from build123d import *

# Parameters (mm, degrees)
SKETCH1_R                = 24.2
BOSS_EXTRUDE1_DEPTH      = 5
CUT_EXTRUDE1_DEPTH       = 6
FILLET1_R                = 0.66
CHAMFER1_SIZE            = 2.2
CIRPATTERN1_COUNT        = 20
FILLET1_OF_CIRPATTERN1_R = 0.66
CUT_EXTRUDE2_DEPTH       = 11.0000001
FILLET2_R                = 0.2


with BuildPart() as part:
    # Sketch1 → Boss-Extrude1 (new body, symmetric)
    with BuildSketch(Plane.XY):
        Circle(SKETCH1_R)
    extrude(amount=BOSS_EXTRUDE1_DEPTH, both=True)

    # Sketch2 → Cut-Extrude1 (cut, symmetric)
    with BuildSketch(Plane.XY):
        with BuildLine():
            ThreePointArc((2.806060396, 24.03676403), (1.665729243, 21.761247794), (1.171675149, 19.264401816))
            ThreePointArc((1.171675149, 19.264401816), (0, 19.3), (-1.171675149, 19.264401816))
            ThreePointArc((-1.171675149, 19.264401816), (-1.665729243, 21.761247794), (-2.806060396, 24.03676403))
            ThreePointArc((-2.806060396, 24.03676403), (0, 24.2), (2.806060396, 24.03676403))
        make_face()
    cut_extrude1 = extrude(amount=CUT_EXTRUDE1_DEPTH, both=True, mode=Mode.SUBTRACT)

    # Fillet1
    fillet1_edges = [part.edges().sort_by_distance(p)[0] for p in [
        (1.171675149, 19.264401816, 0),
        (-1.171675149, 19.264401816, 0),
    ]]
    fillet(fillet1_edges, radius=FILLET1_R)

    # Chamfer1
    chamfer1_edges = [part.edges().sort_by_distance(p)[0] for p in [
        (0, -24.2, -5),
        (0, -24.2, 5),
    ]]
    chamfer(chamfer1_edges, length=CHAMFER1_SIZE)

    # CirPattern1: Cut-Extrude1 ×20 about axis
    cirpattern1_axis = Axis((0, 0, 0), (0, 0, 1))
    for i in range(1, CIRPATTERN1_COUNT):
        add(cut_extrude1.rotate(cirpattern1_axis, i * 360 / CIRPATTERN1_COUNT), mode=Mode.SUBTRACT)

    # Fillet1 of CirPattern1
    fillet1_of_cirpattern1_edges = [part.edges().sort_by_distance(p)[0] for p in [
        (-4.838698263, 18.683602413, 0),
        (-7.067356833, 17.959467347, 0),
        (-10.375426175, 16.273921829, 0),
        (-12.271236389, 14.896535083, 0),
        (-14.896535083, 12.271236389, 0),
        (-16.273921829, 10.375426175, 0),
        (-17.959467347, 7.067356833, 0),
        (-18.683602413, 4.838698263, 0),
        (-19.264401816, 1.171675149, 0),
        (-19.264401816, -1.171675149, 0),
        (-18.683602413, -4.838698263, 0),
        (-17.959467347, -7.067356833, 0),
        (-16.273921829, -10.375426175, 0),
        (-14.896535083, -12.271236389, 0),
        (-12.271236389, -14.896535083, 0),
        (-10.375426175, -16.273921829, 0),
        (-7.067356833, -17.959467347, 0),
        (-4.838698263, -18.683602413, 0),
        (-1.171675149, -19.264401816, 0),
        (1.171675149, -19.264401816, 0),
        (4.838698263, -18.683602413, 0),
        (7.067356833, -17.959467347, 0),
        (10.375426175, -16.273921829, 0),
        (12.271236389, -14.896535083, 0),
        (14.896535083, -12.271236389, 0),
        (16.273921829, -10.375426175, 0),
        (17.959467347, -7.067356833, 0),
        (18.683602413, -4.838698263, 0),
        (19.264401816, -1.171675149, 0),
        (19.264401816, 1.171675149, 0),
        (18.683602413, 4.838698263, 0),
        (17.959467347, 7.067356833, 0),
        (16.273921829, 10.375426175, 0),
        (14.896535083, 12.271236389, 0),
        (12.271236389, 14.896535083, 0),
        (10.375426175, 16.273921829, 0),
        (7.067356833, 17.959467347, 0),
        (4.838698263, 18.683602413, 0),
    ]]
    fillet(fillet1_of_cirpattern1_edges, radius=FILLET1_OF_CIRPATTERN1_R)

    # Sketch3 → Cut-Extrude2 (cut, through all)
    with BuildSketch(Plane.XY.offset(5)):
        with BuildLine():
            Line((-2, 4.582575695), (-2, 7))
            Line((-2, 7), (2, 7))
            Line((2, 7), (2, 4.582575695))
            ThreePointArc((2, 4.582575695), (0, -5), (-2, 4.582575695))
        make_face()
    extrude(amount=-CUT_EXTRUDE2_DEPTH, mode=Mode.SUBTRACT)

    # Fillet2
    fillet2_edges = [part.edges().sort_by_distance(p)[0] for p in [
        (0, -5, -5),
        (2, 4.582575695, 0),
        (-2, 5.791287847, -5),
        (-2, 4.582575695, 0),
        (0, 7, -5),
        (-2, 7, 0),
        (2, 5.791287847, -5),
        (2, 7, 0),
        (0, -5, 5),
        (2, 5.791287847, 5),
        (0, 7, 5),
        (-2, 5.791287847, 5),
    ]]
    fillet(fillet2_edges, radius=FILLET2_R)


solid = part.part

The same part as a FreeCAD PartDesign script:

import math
import FreeCAD as App
import Part
import Sketcher

V = App.Vector
Q = App.Units.Quantity


def edges_at(feature, points):
    """Names of the edges that pass closest to the given points."""
    edges = feature.Shape.Edges
    near = lambda p: min(range(len(edges)), key=lambda i: edges[i].distToShape(Part.Vertex(*p))[0])
    return sorted({f"Edge{near(p) + 1}" for p in points})

doc = App.newDocument("Part")
body = doc.addObject("PartDesign::Body", "Body")

sketch1 = doc.addObject("Sketcher::SketchObject", "Sketch")
body.addObject(sketch1)
sketch1.AttachmentSupport = (doc.XY_Plane, [""])
sketch1.MapMode = "FlatFace"
sketch1.addGeometry(Part.Circle(V(0, 0, 0), V(0, 0, 1), 24), False)
sketch1.addConstraint([
    Sketcher.Constraint("Coincident", 0, 3, -1, 1),
    Sketcher.Constraint("Diameter", 0, Q("48.4 mm")),
])
pad1 = doc.addObject("PartDesign::Pad", "Pad")
body.addObject(pad1)
pad1.Profile = sketch1
pad1.Length = 10
pad1.Midplane = True

sketch2 = doc.addObject("Sketcher::SketchObject", "Sketch001")
body.addObject(sketch2)
sketch2.AttachmentSupport = (doc.XY_Plane, [""])
sketch2.MapMode = "FlatFace"
sketch2.addGeometry([
    Part.ArcOfCircle(Part.Circle(V(10.6, 18.7, 0), V(0, 0, 1), 9.5), math.radians(146), math.radians(177)),
    Part.ArcOfCircle(Part.Circle(V(0, 0, 0), V(0, 0, 1), 24.2), math.radians(83.34), math.radians(96.66)),
    Part.ArcOfCircle(Part.Circle(V(-10.6, 18.7, 0), V(0, 0, 1), 9.5), math.radians(3), math.radians(34)),
    Part.ArcOfCircle(Part.Circle(V(0, 0, 0), V(0, 0, 1), 19.3), math.radians(86.52), math.radians(93.48)),
], False)
sketch2.addConstraint([
    Sketcher.Constraint("Coincident", 0, 1, 1, 1),
    Sketcher.Constraint("Coincident", 1, 2, 2, 2),
    Sketcher.Constraint("Coincident", 2, 1, 3, 2),
    Sketcher.Constraint("Coincident", 3, 1, 0, 2),
    Sketcher.Constraint("Coincident", 1, 3, -1, 1),
    Sketcher.Constraint("Coincident", 3, 3, -1, 1),
    Sketcher.Constraint("Equal", 0, 2),
    Sketcher.Constraint("Symmetric", 0, 3, 2, 3, -2),
    Sketcher.Constraint("Radius", 1, Q("24.2 mm")),
    Sketcher.Constraint("Radius", 3, Q("19.3 mm")),
    Sketcher.Constraint("Radius", 0, Q("9.483362 mm")),
    Sketcher.Constraint("DistanceY", -1, 1, 2, 1, Q("19.264402 mm")),
    Sketcher.Constraint("DistanceY", -1, 1, 0, 3, Q("18.688681 mm")),
])
pocket1 = doc.addObject("PartDesign::Pocket", "Pocket")
body.addObject(pocket1)
pocket1.Profile = sketch2
pocket1.Length = 12
pocket1.Midplane = True
doc.recompute()

fillet = doc.addObject("PartDesign::Fillet", "Fillet")
body.addObject(fillet)
fillet.Base = (pocket1, edges_at(pocket1, [(1.172, 19.264, 0), (-1.172, 19.264, 0)]))
fillet.Radius = 0.66
doc.recompute()

chamfer = doc.addObject("PartDesign::Chamfer", "Chamfer")
body.addObject(chamfer)
chamfer.Base = (fillet, edges_at(fillet, [(0, -24.2, -5), (0, -24.2, 5)]))
chamfer.Size = 2.2
doc.recompute()

polarpattern = doc.addObject("PartDesign::PolarPattern", "PolarPattern")
body.addObject(polarpattern)
polarpattern.Originals = [pocket1]
polarpattern.Axis = (doc.Z_Axis, [""])
polarpattern.Angle = 360
polarpattern.Occurrences = 20
body.Tip = polarpattern
doc.recompute()

fillet2 = doc.addObject("PartDesign::Fillet", "Fillet001")
body.addObject(fillet2)
fillet2.Base = (polarpattern, edges_at(polarpattern, [
    (-4.839, 18.684, 0),
    (-7.067, 17.959, 0),
    (-10.375, 16.274, 0),
    (-12.271, 14.897, 0),
    (-14.897, 12.271, 0),
    (-16.274, 10.375, 0),
    (-17.959, 7.067, 0),
    (-18.684, 4.839, 0),
    (-19.264, 1.172, 0),
    (-19.264, -1.172, 0),
    (-18.684, -4.839, 0),
    (-17.959, -7.067, 0),
    (-16.274, -10.375, 0),
    (-14.897, -12.271, 0),
    (-12.271, -14.897, 0),
    (-10.375, -16.274, 0),
    (-7.067, -17.959, 0),
    (-4.839, -18.684, 0),
    (-1.172, -19.264, 0),
    (1.172, -19.264, 0),
    (4.839, -18.684, 0),
    (7.067, -17.959, 0),
    (10.375, -16.274, 0),
    (12.271, -14.897, 0),
    (14.897, -12.271, 0),
    (16.274, -10.375, 0),
    (17.959, -7.067, 0),
    (18.684, -4.839, 0),
    (19.264, -1.172, 0),
    (19.264, 1.172, 0),
    (18.684, 4.839, 0),
    (17.959, 7.067, 0),
    (16.274, 10.375, 0),
    (14.897, 12.271, 0),
    (12.271, 14.897, 0),
    (10.375, 16.274, 0),
    (7.067, 17.959, 0),
    (4.839, 18.684, 0),
]))
fillet2.Radius = 0.66

sketch3 = doc.addObject("Sketcher::SketchObject", "Sketch002")
body.addObject(sketch3)
sketch3.AttachmentSupport = (doc.XY_Plane, [""])
sketch3.MapMode = "FlatFace"
sketch3.AttachmentOffset = App.Placement(V(0, 0, 5), App.Rotation())
sketch3.addGeometry([
    Part.LineSegment(V(-2, 7, 0), V(-2, 4.6, 0)),
    Part.ArcOfCircle(Part.Circle(V(0, 0, 0), V(0, 0, 1), 5), math.radians(114), math.radians(426)),
    Part.LineSegment(V(2, 4.6, 0), V(2, 7, 0)),
    Part.LineSegment(V(2, 7, 0), V(-2, 7, 0)),
], False)
sketch3.addConstraint([
    Sketcher.Constraint("Coincident", 0, 2, 1, 1),
    Sketcher.Constraint("Coincident", 1, 2, 2, 1),
    Sketcher.Constraint("Coincident", 2, 2, 3, 1),
    Sketcher.Constraint("Coincident", 3, 2, 0, 1),
    Sketcher.Constraint("Vertical", 0),
    Sketcher.Constraint("Vertical", 2),
    Sketcher.Constraint("Horizontal", 3),
    Sketcher.Constraint("Coincident", 1, 3, -1, 1),
    Sketcher.Constraint("Horizontal", 0, 2, 1, 2),
    Sketcher.Constraint("Radius", 1, Q("5 mm")),
    Sketcher.Constraint("DistanceX", 3, 2, 3, 1, Q("4 mm")),
    Sketcher.Constraint("DistanceY", -1, 1, 2, 2, Q("7 mm")),
])
pocket2 = doc.addObject("PartDesign::Pocket", "Pocket001")
body.addObject(pocket2)
pocket2.Profile = sketch3
pocket2.Type = "ThroughAll"
doc.recompute()

fillet3 = doc.addObject("PartDesign::Fillet", "Fillet002")
body.addObject(fillet3)
fillet3.Base = (pocket2, edges_at(pocket2, [
    (0, -5, -5),
    (2, 4.583, 0),
    (-2, 5.791, -5),
    (-2, 4.583, 0),
    (0, 7, -5),
    (-2, 7, 0),
    (2, 5.791, -5),
    (2, 7, 0),
    (0, -5, 5),
    (2, 5.791, 5),
    (0, 7, 5),
    (-2, 5.791, 5),
]))
fillet3.Radius = 0.2

doc.recompute()
